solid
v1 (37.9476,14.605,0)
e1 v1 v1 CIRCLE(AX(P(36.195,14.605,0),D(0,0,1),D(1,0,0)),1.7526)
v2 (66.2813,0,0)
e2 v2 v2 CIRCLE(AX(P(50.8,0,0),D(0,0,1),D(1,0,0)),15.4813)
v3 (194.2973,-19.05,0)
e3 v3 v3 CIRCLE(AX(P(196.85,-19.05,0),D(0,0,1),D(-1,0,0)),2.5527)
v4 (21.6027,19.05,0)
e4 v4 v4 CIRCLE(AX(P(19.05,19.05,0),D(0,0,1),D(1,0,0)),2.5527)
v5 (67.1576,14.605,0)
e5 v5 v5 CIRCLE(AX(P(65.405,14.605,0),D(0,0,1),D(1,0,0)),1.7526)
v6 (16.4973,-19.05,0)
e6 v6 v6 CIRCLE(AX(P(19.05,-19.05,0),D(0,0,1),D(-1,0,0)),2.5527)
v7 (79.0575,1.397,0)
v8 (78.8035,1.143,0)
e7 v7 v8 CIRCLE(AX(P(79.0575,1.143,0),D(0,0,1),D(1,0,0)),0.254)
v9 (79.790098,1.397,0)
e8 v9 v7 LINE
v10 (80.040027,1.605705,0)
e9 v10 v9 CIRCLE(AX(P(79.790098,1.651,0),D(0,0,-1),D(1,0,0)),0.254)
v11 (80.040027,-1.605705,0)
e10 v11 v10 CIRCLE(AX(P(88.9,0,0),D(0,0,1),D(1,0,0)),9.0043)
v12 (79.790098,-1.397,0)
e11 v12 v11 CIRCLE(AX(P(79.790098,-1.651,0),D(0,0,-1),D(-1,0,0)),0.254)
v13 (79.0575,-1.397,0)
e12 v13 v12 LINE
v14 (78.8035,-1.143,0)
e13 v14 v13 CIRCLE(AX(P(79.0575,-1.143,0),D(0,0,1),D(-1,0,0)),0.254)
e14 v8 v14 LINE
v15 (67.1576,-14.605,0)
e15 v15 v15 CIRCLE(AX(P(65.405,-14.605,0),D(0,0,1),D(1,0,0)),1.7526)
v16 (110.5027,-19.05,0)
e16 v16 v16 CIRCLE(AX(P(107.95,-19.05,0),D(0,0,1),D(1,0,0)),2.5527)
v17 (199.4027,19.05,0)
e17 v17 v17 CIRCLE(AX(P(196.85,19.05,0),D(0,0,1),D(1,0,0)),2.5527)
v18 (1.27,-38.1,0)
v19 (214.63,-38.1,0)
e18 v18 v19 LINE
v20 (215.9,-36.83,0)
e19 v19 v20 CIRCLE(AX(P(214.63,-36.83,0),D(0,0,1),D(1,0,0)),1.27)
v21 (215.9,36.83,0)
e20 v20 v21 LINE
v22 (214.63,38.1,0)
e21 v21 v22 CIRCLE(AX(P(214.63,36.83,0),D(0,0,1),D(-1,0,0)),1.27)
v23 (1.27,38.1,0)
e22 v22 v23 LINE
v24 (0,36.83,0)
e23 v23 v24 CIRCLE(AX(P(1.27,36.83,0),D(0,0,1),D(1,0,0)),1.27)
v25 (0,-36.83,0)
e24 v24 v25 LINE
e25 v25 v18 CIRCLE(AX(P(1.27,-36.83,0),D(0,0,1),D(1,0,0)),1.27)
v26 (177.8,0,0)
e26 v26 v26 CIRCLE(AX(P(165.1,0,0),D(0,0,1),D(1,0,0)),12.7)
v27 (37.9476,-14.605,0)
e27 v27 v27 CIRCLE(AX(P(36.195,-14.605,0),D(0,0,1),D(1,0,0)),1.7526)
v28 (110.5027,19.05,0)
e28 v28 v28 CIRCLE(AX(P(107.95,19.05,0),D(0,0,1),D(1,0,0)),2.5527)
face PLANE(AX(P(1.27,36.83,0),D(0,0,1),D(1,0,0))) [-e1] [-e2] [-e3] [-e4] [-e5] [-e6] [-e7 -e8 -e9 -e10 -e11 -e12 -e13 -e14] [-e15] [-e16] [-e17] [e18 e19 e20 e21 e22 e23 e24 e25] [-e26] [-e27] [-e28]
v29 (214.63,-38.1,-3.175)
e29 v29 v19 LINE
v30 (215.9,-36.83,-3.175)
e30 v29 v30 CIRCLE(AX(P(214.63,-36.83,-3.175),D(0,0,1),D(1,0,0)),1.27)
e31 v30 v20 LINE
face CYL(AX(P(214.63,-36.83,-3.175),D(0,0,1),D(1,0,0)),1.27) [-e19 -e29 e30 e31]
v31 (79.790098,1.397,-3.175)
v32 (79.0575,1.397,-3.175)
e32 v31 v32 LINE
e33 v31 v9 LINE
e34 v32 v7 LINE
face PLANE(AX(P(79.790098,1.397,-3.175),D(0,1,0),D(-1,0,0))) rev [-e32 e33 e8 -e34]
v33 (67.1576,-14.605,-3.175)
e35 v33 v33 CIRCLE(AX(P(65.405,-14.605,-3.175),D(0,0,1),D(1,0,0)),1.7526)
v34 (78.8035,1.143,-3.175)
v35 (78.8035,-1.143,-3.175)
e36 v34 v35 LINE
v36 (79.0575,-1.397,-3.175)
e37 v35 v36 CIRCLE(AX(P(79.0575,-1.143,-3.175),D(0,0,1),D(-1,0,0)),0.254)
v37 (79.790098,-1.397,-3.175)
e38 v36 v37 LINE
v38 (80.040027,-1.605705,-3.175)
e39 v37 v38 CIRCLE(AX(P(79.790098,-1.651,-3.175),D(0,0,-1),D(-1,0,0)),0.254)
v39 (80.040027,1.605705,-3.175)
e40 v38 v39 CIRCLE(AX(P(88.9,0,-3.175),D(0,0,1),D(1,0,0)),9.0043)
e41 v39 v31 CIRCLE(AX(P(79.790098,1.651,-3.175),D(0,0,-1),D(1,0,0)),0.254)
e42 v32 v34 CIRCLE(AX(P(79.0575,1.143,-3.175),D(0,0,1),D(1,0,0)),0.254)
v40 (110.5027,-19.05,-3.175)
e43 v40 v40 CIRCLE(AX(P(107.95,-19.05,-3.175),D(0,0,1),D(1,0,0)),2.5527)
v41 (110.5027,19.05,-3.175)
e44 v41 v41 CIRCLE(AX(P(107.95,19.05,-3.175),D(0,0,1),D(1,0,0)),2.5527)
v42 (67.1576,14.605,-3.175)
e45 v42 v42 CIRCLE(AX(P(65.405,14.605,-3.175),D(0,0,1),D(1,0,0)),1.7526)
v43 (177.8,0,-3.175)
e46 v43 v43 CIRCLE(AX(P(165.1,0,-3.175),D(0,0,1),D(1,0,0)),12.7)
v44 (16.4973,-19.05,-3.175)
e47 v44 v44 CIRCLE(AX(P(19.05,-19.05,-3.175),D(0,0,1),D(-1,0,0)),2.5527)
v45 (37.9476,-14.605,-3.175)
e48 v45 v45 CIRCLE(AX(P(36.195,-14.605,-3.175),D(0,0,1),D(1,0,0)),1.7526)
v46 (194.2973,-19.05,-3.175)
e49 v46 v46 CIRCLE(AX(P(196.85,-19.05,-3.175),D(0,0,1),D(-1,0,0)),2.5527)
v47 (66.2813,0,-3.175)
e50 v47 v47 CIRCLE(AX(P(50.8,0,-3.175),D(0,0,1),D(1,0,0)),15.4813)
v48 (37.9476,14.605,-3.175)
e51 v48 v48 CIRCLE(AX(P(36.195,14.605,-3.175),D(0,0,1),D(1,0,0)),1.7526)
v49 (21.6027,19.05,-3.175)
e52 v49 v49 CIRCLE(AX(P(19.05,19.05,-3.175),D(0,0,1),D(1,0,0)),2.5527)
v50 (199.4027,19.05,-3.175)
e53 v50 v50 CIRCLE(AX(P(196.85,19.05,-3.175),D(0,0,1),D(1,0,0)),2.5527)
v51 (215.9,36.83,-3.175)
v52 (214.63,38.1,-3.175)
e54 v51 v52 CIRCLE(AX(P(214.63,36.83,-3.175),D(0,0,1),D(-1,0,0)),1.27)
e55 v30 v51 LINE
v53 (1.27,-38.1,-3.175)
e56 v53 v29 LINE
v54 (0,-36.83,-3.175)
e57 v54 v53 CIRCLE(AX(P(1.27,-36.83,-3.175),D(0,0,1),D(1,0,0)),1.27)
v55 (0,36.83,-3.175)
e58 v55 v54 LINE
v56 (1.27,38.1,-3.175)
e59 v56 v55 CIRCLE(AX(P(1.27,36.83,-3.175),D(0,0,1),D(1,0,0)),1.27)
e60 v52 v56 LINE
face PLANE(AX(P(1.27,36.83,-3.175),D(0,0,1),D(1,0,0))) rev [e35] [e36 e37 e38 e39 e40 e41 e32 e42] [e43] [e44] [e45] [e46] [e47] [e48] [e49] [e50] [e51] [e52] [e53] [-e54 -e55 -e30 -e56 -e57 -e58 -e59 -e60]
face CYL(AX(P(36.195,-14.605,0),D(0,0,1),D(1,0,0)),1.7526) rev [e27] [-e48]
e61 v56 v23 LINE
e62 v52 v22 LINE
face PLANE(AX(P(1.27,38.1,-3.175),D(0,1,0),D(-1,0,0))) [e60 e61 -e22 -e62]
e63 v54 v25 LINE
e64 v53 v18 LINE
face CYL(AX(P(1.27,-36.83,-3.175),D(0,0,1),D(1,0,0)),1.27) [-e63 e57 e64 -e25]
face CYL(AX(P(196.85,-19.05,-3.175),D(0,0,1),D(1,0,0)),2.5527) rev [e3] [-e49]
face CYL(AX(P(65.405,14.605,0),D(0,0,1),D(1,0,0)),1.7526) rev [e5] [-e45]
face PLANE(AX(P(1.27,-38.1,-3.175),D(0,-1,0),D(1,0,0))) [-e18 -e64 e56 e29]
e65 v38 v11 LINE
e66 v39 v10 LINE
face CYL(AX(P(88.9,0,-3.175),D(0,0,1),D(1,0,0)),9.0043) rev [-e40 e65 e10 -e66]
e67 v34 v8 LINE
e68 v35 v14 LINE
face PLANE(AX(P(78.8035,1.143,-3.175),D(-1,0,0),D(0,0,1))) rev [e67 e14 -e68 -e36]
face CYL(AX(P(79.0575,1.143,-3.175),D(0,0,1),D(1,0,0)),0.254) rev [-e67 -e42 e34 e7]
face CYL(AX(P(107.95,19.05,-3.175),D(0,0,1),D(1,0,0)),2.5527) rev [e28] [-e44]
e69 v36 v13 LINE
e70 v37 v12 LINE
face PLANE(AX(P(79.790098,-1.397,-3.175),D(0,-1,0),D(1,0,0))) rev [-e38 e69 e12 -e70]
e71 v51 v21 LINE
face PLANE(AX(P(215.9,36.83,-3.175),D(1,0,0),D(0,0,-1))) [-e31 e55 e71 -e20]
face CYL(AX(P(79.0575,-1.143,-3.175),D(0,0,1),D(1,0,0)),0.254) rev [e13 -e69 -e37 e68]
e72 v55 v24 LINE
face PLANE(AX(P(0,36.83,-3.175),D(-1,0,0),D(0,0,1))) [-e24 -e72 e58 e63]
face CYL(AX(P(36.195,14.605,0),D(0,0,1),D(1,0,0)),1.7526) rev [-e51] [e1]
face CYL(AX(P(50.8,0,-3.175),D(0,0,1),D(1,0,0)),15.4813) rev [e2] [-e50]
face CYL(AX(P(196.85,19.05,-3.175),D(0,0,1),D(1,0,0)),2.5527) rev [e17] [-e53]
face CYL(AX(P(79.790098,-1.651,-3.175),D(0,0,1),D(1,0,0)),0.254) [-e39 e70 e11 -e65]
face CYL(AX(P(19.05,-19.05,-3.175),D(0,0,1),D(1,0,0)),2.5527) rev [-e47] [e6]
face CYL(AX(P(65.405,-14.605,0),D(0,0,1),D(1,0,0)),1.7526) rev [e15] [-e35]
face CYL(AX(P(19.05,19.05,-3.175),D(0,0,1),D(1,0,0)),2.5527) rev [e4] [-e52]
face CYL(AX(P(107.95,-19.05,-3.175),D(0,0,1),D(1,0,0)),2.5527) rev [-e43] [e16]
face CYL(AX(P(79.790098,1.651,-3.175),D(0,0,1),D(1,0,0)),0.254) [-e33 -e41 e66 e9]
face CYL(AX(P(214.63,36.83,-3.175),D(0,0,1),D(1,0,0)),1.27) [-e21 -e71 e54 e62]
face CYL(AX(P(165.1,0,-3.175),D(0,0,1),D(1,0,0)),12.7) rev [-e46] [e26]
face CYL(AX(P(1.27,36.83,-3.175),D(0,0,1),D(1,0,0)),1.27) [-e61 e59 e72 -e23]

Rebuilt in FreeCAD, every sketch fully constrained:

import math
import FreeCAD as App
import Part
import Sketcher
Q = App.Units.Quantity

doc = App.newDocument("Part")
body = doc.addObject("PartDesign::Body", "Body")

sketch1 = body.newObject("Sketcher::SketchObject", "Sketch")
sketch1.AttachmentSupport = (doc.getObject("XY_Plane"), [""])
sketch1.MapMode = "FlatFace"
sketch1.addGeometry(Part.LineSegment(App.Vector(214.63, 38.1, 0), App.Vector(1.27, 38.1, 0)), False)
sketch1.addGeometry(Part.ArcOfCircle(Part.Circle(App.Vector(1.27, 36.83, 0), App.Vector(0, 0, 1), 1.27), math.radians(90), math.radians(180)), False)
sketch1.addGeometry(Part.LineSegment(App.Vector(0, 36.83, 0), App.Vector(0, -36.83, 0)), False)
sketch1.addGeometry(Part.ArcOfCircle(Part.Circle(App.Vector(1.27, -36.83, 0), App.Vector(0, 0, 1), 1.27), math.radians(180), math.radians(270)), False)
sketch1.addGeometry(Part.LineSegment(App.Vector(1.27, -38.1, 0), App.Vector(214.63, -38.1, 0)), False)
sketch1.addGeometry(Part.ArcOfCircle(Part.Circle(App.Vector(214.63, -36.83, 0), App.Vector(0, 0, 1), 1.27), math.radians(-90), math.radians(0)), False)
sketch1.addGeometry(Part.LineSegment(App.Vector(215.9, -36.83, 0), App.Vector(215.9, 36.83, 0)), False)
sketch1.addGeometry(Part.ArcOfCircle(Part.Circle(App.Vector(214.63, 36.83, 0), App.Vector(0, 0, 1), 1.27), math.radians(0), math.radians(90)), False)
sketch1.addGeometry(Part.Circle(App.Vector(196.85, -19.05, 0), App.Vector(0, 0, 1), 2.5527), False)
sketch1.addGeometry(Part.Circle(App.Vector(107.95, -19.05, 0), App.Vector(0, 0, 1), 2.5527), False)
sketch1.addGeometry(Part.Circle(App.Vector(165.1, 0, 0), App.Vector(0, 0, 1), 12.7), False)
sketch1.addGeometry(Part.Circle(App.Vector(19.05, -19.05, 0), App.Vector(0, 0, 1), 2.5527), False)
sketch1.addGeometry(Part.Circle(App.Vector(50.8, 0, 0), App.Vector(0, 0, 1), 15.4813), False)
sketch1.addGeometry(Part.Circle(App.Vector(196.85, 19.05, 0), App.Vector(0, 0, 1), 2.5527), False)
sketch1.addGeometry(Part.Circle(App.Vector(107.95, 19.05, 0), App.Vector(0, 0, 1), 2.5527), False)
sketch1.addGeometry(Part.ArcOfCircle(Part.Circle(App.Vector(79.790098, 1.651, 0), App.Vector(0, 0, 1), 0.254), math.radians(-90), math.radians(-10.272297)), False)
sketch1.addGeometry(Part.ArcOfCircle(Part.Circle(App.Vector(88.9, 0, 0), App.Vector(0, 0, 1), 9.0043), math.radians(-169.727703), math.radians(169.727703)), False)
sketch1.addGeometry(Part.ArcOfCircle(Part.Circle(App.Vector(79.790098, -1.651, 0), App.Vector(0, 0, 1), 0.254), math.radians(10.272297), math.radians(90)), False)
sketch1.addGeometry(Part.LineSegment(App.Vector(79.790098, -1.397, 0), App.Vector(79.0575, -1.397, 0)), False)
sketch1.addGeometry(Part.ArcOfCircle(Part.Circle(App.Vector(79.0575, -1.143, 0), App.Vector(0, 0, 1), 0.254), math.radians(-180), math.radians(-90)), False)
sketch1.addGeometry(Part.LineSegment(App.Vector(78.8035, -1.143, 0), App.Vector(78.8035, 1.143, 0)), False)
sketch1.addGeometry(Part.ArcOfCircle(Part.Circle(App.Vector(79.0575, 1.143, 0), App.Vector(0, 0, 1), 0.254), math.radians(90), math.radians(180)), False)
sketch1.addGeometry(Part.LineSegment(App.Vector(79.0575, 1.397, 0), App.Vector(79.790098, 1.397, 0)), False)
sketch1.addGeometry(Part.Circle(App.Vector(19.05, 19.05, 0), App.Vector(0, 0, 1), 2.5527), False)
sketch1.addConstraint(Sketcher.Constraint("Tangent", 0, 2, 1, 1))
sketch1.addConstraint(Sketcher.Constraint("Tangent", 1, 2, 2, 1))
sketch1.addConstraint(Sketcher.Constraint("Tangent", 2, 2, 3, 1))
sketch1.addConstraint(Sketcher.Constraint("Tangent", 3, 2, 4, 1))
sketch1.addConstraint(Sketcher.Constraint("Tangent", 4, 2, 5, 1))
sketch1.addConstraint(Sketcher.Constraint("Tangent", 5, 2, 6, 1))
sketch1.addConstraint(Sketcher.Constraint("Tangent", 6, 2, 7, 1))
sketch1.addConstraint(Sketcher.Constraint("Tangent", 7, 2, 0, 1))
sketch1.addConstraint(Sketcher.Constraint("Tangent", 15, 2, 16, 2))
sketch1.addConstraint(Sketcher.Constraint("Tangent", 16, 1, 17, 1))
sketch1.addConstraint(Sketcher.Constraint("Tangent", 17, 2, 18, 1))
sketch1.addConstraint(Sketcher.Constraint("Tangent", 18, 2, 19, 2))
sketch1.addConstraint(Sketcher.Constraint("Tangent", 19, 1, 20, 1))
sketch1.addConstraint(Sketcher.Constraint("Tangent", 20, 2, 21, 2))
sketch1.addConstraint(Sketcher.Constraint("Tangent", 21, 1, 22, 1))
sketch1.addConstraint(Sketcher.Constraint("Tangent", 22, 2, 15, 1))
sketch1.addConstraint(Sketcher.Constraint("Horizontal", 0))
sketch1.addConstraint(Sketcher.Constraint("Vertical", 2))
sketch1.addConstraint(Sketcher.Constraint("Horizontal", 4))
sketch1.addConstraint(Sketcher.Constraint("Vertical", 6))
sketch1.addConstraint(Sketcher.Constraint("Horizontal", 18))
sketch1.addConstraint(Sketcher.Constraint("Vertical", 20))
sketch1.addConstraint(Sketcher.Constraint("Horizontal", 22))
sketch1.addConstraint(Sketcher.Constraint("Equal", 1, 3))
sketch1.addConstraint(Sketcher.Constraint("Equal", 3, 5))
sketch1.addConstraint(Sketcher.Constraint("Equal", 5, 7))
sketch1.addConstraint(Sketcher.Constraint("Equal", 8, 9))
sketch1.addConstraint(Sketcher.Constraint("Equal", 9, 11))
sketch1.addConstraint(Sketcher.Constraint("Equal", 11, 13))
sketch1.addConstraint(Sketcher.Constraint("Equal", 13, 14))
sketch1.addConstraint(Sketcher.Constraint("Equal", 15, 17))
sketch1.addConstraint(Sketcher.Constraint("Equal", 17, 19))
sketch1.addConstraint(Sketcher.Constraint("Equal", 19, 21))
sketch1.addConstraint(Sketcher.Constraint("Equal", 14, 23))
sketch1.addConstraint(Sketcher.Constraint("Symmetric", 1, 2, 2, 2, -1, 1))
sketch1.addConstraint(Sketcher.Constraint("Symmetric", 8, 3, 13, 3, -1))
sketch1.addConstraint(Sketcher.Constraint("Symmetric", 9, 3, 14, 3, -1))
sketch1.addConstraint(Sketcher.Constraint("Symmetric", 15, 3, 17, 3, -1))
sketch1.addConstraint(Sketcher.Constraint("Symmetric", 11, 3, 23, 3, -1))
sketch1.addConstraint(Sketcher.Constraint("PointOnObject", 10, 3, -1))
sketch1.addConstraint(Sketcher.Constraint("PointOnObject", 12, 3, -1))
sketch1.addConstraint(Sketcher.Constraint("Horizontal", 8, 3, 9, 3))
sketch1.addConstraint(Sketcher.Constraint("Horizontal", 9, 3, 11, 3))
sketch1.addConstraint(Sketcher.Constraint("Diameter", 10, Q("1 in")))
sketch1.addConstraint(Sketcher.Constraint("Radius", 1, Q("0.05 in")))
sketch1.addConstraint(Sketcher.Constraint("Radius", 15, Q("0.01 in")))
sketch1.addConstraint(Sketcher.Constraint("Diameter", 8, Q("0.201 in")))
sketch1.addConstraint(Sketcher.Constraint("Diameter", 12, Q("1.219 in")))
sketch1.addConstraint(Sketcher.Constraint("DistanceX", 0, 2, 0, 1, Q("8.4 in")))
sketch1.addConstraint(Sketcher.Constraint("DistanceY", 2, 2, 2, 1, Q("2.9 in")))
sketch1.addConstraint(Sketcher.Constraint("DistanceX", -1, 1, 12, 3, Q("2 in")))
sketch1.addConstraint(Sketcher.Constraint("DistanceX", 11, 3, 8, 3, Q("7 in")))
sketch1.addConstraint(Sketcher.Constraint("DistanceX", 10, 3, 5, 2, Q("2 in")))
sketch1.addConstraint(Sketcher.Constraint("DistanceY", 20, 1, 20, 2, Q("0.09 in")))
sketch1.addConstraint(Sketcher.Constraint("DistanceX", -1, 1, 16, 3, Q("3.5 in")))
sketch1.addConstraint(Sketcher.Constraint("Radius", 16, Q("0.3545 in")))
sketch1.addConstraint(Sketcher.Constraint("DistanceX", 8, 3, 5, 3, Q("0.7 in")))
sketch1.addConstraint(Sketcher.Constraint("DistanceY", 5, 3, 8, 3, Q("0.7 in")))
sketch1.addConstraint(Sketcher.Constraint("DistanceX", 9, 3, 8, 3, Q("3.5 in")))
sketch1.addConstraint(Sketcher.Constraint("DistanceX", -1, 1, 19, 3, Q("3.1125 in")))
pad1 = body.newObject("PartDesign::Pad", "Pad")
pad1.Profile = sketch1
pad1.Length = Q("0.125 in")
pad1.Reversed = True

sketch2 = body.newObject("Sketcher::SketchObject", "Sketch001")
sketch2.AttachmentSupport = (doc.getObject("XY_Plane"), [""])
sketch2.MapMode = "FlatFace"
sketch2.addGeometry(Part.Circle(App.Vector(36.195, 14.605, 0), App.Vector(0, 0, 1), 1.7526), False)
sketch2.addGeometry(Part.Circle(App.Vector(65.405, 14.605, 0), App.Vector(0, 0, 1), 1.7526), False)
sketch2.addGeometry(Part.Circle(App.Vector(65.405, -14.605, 0), App.Vector(0, 0, 1), 1.7526), False)
sketch2.addGeometry(Part.Circle(App.Vector(36.195, -14.605, 0), App.Vector(0, 0, 1), 1.7526), False)
sketch2.addConstraint(Sketcher.Constraint("Equal", 0, 1))
sketch2.addConstraint(Sketcher.Constraint("Equal", 1, 2))
sketch2.addConstraint(Sketcher.Constraint("Equal", 2, 3))
sketch2.addConstraint(Sketcher.Constraint("Symmetric", 1, 3, 2, 3, -1))
sketch2.addConstraint(Sketcher.Constraint("Symmetric", 0, 3, 3, 3, -1))
sketch2.addConstraint(Sketcher.Constraint("Horizontal", 0, 3, 1, 3))
sketch2.addConstraint(Sketcher.Constraint("Diameter", 0, Q("0.138 in")))
sketch2.addConstraint(Sketcher.Constraint("DistanceX", 0, 3, 1, 3, Q("1.15 in")))
sketch2.addConstraint(Sketcher.Constraint("DistanceY", 2, 3, 1, 3, Q("1.15 in")))
sketch2.addConstraint(Sketcher.Constraint("DistanceX", -1, 1, 0, 3, Q("1.425 in")))
doc.recompute()
hole = body.newObject("PartDesign::Hole", "Hole")
hole.Profile = sketch2
hole.ThreadType = "None"
hole.Diameter = Q("0.138 in")
hole.DepthType = "ThroughAll"

doc.recompute()
